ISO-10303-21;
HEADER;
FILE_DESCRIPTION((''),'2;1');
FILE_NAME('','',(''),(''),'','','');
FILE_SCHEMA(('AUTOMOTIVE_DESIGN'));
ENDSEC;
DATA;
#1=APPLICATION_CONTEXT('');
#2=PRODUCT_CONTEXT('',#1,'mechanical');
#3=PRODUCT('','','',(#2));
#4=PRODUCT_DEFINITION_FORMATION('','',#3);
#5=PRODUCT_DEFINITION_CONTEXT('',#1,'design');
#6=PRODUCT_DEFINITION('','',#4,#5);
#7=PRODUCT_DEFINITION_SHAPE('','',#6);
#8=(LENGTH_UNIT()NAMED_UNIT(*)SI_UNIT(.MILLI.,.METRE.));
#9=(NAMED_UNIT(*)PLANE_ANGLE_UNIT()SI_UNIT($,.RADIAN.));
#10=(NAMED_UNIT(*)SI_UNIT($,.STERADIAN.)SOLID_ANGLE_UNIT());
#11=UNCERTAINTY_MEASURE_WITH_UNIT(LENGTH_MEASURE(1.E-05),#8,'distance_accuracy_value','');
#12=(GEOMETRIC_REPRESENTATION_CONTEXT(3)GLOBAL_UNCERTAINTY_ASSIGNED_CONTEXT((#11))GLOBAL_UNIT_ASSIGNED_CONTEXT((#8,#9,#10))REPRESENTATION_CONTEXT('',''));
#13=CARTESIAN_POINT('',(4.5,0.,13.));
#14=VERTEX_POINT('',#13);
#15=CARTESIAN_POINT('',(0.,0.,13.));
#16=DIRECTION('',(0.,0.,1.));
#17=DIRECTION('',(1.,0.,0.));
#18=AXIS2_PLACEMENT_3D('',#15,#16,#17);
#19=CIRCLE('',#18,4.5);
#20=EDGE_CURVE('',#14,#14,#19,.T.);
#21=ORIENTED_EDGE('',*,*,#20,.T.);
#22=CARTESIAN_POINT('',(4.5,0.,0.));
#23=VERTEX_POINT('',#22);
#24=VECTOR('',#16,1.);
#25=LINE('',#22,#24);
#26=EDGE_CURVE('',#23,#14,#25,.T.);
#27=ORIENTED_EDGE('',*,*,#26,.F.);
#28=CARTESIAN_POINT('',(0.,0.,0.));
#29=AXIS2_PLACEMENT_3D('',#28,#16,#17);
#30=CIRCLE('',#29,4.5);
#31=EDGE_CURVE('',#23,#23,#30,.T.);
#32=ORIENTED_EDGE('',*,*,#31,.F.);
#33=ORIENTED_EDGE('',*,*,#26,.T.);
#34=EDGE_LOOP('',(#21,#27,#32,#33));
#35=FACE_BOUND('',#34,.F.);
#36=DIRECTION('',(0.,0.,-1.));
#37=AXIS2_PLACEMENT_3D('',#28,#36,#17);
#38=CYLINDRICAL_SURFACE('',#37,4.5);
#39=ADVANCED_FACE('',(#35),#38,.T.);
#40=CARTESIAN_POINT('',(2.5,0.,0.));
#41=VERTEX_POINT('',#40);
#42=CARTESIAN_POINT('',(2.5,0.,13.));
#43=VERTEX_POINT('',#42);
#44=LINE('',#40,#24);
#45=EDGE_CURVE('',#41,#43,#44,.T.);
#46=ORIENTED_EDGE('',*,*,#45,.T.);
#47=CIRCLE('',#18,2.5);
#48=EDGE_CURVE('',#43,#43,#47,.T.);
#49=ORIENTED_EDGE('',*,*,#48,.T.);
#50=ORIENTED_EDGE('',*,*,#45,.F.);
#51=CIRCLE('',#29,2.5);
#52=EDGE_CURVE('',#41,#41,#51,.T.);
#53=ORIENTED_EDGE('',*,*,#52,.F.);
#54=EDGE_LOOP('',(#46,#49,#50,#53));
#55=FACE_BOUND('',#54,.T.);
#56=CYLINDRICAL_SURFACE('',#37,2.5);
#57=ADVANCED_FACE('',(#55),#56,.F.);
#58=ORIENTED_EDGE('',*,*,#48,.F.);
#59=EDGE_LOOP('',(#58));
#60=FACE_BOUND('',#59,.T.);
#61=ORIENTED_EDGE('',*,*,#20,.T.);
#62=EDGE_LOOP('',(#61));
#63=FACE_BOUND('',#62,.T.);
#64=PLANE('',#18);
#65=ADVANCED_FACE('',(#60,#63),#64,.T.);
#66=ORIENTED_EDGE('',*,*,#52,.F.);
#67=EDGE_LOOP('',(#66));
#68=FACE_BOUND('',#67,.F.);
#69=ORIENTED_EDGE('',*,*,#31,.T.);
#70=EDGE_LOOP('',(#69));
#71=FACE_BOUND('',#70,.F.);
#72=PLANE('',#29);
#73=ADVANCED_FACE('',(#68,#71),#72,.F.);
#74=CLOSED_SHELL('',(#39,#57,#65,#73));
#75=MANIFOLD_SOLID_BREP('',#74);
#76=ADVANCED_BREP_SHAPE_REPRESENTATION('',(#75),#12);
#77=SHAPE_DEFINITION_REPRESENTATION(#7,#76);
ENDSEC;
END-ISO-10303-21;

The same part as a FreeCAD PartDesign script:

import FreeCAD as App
import Part
import Sketcher

doc = App.newDocument("Part")
params = doc.addObject("Spreadsheet::Sheet", "Params")
for row, (alias, value) in enumerate([
    ("sketch1_diameter", "9 mm"),
    ("sketch1_diameter2", "5 mm"),
    ("pad1_length", "13 mm"),
], start=1):
    params.set(f"A{row}", alias)
    params.set(f"B{row}", "=" + value)
    params.setAlias(f"B{row}", alias)

body = doc.addObject("PartDesign::Body", "Body")

# Sketch on XY plane
sketch1 = body.newObject("Sketcher::SketchObject", "Sketch")
sketch1.AttachmentSupport = (doc.getObject("XY_Plane"), [""])
sketch1.MapMode = "FlatFace"
sketch1.addGeometry([
    Part.Circle(App.Vector(0, 0, 0), App.Vector(0, 0, 1), 4.5),
    Part.Circle(App.Vector(0, 0, 0), App.Vector(0, 0, 1), 2.5),
], False)
sketch1.addConstraint([
    Sketcher.Constraint("Coincident", 0, 3, -1, 1),
    Sketcher.Constraint("Coincident", 1, 3, -1, 1),
    Sketcher.Constraint("Diameter", 0, 9.0),
    Sketcher.Constraint("Diameter", 1, 5.0),
])
sketch1.setExpression("Constraints[2]", "Params.sketch1_diameter")
sketch1.setExpression("Constraints[3]", "Params.sketch1_diameter2")
pad1 = body.newObject("PartDesign::Pad", "Pad")
pad1.Profile = sketch1
pad1.setExpression("Length", "Params.pad1_length")

doc.recompute()
